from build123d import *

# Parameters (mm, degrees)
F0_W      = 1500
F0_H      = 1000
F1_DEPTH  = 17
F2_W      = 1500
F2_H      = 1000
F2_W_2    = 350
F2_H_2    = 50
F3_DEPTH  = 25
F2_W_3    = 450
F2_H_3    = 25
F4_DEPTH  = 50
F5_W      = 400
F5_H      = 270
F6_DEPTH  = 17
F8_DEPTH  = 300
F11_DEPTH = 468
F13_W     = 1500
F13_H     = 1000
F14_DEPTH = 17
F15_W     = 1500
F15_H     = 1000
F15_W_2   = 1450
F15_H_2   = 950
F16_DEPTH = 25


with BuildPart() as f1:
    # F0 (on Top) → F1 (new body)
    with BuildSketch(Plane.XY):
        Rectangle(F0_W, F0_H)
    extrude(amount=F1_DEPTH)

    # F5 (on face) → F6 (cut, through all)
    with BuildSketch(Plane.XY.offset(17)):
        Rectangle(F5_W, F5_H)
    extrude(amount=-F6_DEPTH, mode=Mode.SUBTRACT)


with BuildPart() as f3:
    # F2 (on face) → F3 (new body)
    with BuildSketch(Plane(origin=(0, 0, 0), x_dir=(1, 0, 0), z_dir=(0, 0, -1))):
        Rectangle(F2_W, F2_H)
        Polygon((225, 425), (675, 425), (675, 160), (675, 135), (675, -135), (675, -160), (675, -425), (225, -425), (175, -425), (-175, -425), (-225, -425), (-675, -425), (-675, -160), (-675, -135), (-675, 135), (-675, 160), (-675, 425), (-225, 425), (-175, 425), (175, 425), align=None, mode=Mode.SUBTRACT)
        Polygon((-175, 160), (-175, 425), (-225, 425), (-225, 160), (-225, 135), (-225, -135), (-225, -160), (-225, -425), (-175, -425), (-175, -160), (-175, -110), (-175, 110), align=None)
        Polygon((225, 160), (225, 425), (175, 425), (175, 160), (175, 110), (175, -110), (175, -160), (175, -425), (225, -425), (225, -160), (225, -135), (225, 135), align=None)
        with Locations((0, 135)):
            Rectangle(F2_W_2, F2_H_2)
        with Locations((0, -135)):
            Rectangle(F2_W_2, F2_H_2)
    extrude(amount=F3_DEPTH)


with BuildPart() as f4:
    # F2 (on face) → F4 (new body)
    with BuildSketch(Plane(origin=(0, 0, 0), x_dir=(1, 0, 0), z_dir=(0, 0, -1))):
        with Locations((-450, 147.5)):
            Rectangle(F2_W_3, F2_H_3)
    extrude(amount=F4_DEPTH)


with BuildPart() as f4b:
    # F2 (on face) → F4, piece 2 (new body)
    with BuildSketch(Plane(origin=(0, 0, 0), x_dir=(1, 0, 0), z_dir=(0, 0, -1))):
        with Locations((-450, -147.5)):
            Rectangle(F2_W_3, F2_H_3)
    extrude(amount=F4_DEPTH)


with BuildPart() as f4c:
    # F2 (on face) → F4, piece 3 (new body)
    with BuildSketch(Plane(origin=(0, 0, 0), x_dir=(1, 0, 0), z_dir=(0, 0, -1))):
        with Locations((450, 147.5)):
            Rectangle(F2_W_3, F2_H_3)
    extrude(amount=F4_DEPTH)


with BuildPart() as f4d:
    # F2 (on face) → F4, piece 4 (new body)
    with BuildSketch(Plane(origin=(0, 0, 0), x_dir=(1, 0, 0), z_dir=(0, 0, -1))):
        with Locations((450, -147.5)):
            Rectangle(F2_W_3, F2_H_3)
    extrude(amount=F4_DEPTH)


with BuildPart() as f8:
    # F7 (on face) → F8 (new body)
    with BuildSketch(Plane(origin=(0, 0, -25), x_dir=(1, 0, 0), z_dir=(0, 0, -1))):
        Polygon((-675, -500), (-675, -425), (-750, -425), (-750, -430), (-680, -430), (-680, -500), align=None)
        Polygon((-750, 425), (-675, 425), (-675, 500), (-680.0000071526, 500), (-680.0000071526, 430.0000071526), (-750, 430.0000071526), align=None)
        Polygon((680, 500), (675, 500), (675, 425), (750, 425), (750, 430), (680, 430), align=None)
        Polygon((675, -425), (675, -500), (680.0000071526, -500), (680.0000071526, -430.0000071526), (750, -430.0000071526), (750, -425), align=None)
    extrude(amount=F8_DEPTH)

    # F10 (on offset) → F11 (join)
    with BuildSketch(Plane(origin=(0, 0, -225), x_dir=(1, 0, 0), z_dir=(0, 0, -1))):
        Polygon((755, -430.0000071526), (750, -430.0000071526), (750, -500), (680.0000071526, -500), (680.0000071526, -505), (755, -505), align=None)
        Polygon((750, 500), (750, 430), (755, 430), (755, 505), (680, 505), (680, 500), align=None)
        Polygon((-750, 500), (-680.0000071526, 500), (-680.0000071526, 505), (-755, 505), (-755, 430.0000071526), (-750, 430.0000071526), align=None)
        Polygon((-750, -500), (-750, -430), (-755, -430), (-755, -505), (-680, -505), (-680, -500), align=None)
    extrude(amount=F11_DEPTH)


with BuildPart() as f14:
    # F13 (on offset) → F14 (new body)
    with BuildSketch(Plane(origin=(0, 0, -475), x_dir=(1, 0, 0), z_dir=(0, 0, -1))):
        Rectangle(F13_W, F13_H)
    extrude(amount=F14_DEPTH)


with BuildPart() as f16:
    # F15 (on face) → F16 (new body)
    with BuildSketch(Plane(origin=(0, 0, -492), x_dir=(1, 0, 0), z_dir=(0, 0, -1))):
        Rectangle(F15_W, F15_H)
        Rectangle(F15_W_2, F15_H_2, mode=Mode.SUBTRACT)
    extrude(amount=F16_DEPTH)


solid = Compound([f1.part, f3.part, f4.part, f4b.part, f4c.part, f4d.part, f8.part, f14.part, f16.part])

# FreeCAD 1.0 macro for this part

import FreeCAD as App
import Part
import Sketcher
from FreeCAD import Vector
Q = App.Units.Quantity


def add_polygon(sketch, points):
    """Adds a closed chain of lines whose ends are joined by coincident constraints."""
    first, n = sketch.GeometryCount, len(points)
    for a, b in zip(points, points[1:] + points[:1]):
        sketch.addGeometry(Part.LineSegment(App.Vector(*a, 0), App.Vector(*b, 0)), False)
    for i in range(n):
        sketch.addConstraint(Sketcher.Constraint("Coincident", first + i, 2, first + (i + 1) % n, 1))

doc = App.newDocument("Part")
body = doc.addObject("PartDesign::Body", "Body")

sketch1 = doc.addObject("Sketcher::SketchObject", "Sketch")
body.addObject(sketch1)
sketch1.AttachmentSupport = (doc.XY_Plane, [""])
sketch1.MapMode = "FlatFace"
add_polygon(sketch1, [(-750, 500), (-750, -500), (750, -500), (750, 500)])
sketch1.addConstraint([
    Sketcher.Constraint("Vertical", 0),
    Sketcher.Constraint("Horizontal", 1),
    Sketcher.Constraint("Vertical", 2),
    Sketcher.Constraint("Horizontal", 3),
    Sketcher.Constraint("Symmetric", 0, 2, 2, 2, -1, 1),
    Sketcher.Constraint("DistanceX", 1, 1, 1, 2, Q("1500 mm")),
    Sketcher.Constraint("DistanceY", 0, 2, 0, 1, Q("1000 mm")),
])
pad1 = doc.addObject("PartDesign::Pad", "Pad")
body.addObject(pad1)
pad1.Profile = sketch1
pad1.Length = 17

sketch2 = doc.addObject("Sketcher::SketchObject", "Sketch001")
body.addObject(sketch2)
sketch2.AttachmentSupport = (doc.XY_Plane, [""])
sketch2.MapMode = "FlatFace"
sketch2.AttachmentOffset = App.Placement(Vector(0, 0, 17), App.Rotation())
add_polygon(sketch2, [(-200, 135), (-200, -135), (200, -135), (200, 135)])
sketch2.addConstraint([
    Sketcher.Constraint("Vertical", 0),
    Sketcher.Constraint("Horizontal", 1),
    Sketcher.Constraint("Vertical", 2),
    Sketcher.Constraint("Horizontal", 3),
    Sketcher.Constraint("Symmetric", 0, 2, 2, 2, -1, 1),
    Sketcher.Constraint("DistanceX", 1, 1, 1, 2, Q("400 mm")),
    Sketcher.Constraint("DistanceY", 0, 2, 0, 1, Q("270 mm")),
])
pocket1 = doc.addObject("PartDesign::Pocket", "Pocket")
body.addObject(pocket1)
pocket1.Profile = sketch2
pocket1.Type = "ThroughAll"
body2 = doc.addObject("PartDesign::Body", "Body001")

sketch3 = doc.addObject("Sketcher::SketchObject", "Sketch002")
body2.addObject(sketch3)
sketch3.AttachmentSupport = (doc.getObject("XY_Plane001"), [""])
sketch3.MapMode = "FlatFace"
add_polygon(sketch3, [(-750, -500), (-750, 500), (750, 500), (750, -500)])
add_polygon(sketch3, [(-675, -425), (-225, -425), (-225, 425), (-675, 425)])
add_polygon(sketch3, [(-175, -425), (175, -425), (175, -160), (-175, -160)])
add_polygon(sketch3, [(175, -110), (175, 110), (-175, 110), (-175, -110)])
add_polygon(sketch3, [(175, 160), (175, 425), (-175, 425), (-175, 160)])
add_polygon(sketch3, [(225, -425), (675, -425), (675, 425), (225, 425)])
sketch3.addConstraint([
    Sketcher.Constraint("Vertical", 0),
    Sketcher.Constraint("Horizontal", 1),
    Sketcher.Constraint("Vertical", 2),
    Sketcher.Constraint("Horizontal", 3),
    Sketcher.Constraint("Horizontal", 4),
    Sketcher.Constraint("Vertical", 5),
    Sketcher.Constraint("Horizontal", 6),
    Sketcher.Constraint("Vertical", 7),
    Sketcher.Constraint("Horizontal", 8),
    Sketcher.Constraint("Vertical", 9),
    Sketcher.Constraint("Horizontal", 10),
    Sketcher.Constraint("Vertical", 11),
    Sketcher.Constraint("Vertical", 12),
    Sketcher.Constraint("Horizontal", 13),
    Sketcher.Constraint("Vertical", 14),
    Sketcher.Constraint("Horizontal", 15),
    Sketcher.Constraint("Vertical", 16),
    Sketcher.Constraint("Horizontal", 17),
    Sketcher.Constraint("Vertical", 18),
    Sketcher.Constraint("Horizontal", 19),
    Sketcher.Constraint("Horizontal", 20),
    Sketcher.Constraint("Vertical", 21),
    Sketcher.Constraint("Horizontal", 22),
    Sketcher.Constraint("Vertical", 23),
    Sketcher.Constraint("Symmetric", 0, 2, 2, 2, -1, 1),
    Sketcher.Constraint("Symmetric", 12, 2, 14, 2, -1, 1),
    Sketcher.Constraint("Symmetric", 11, 2, 16, 2, -1, 1),
    Sketcher.Constraint("Symmetric", 9, 2, 18, 2, -1, 1),
    Sketcher.Constraint("Symmetric", 6, 2, 20, 2, -1, 1),
    Sketcher.Constraint("Symmetric", 4, 2, 22, 2, -1, 1),
    Sketcher.Constraint("Horizontal", 7, 2, 8, 2),
    Sketcher.Constraint("Horizontal", 6, 2, 16, 2),
    Sketcher.Constraint("Vertical", 9, 2, 12, 2),
    Sketcher.Constraint("Vertical", 11, 2, 13, 2),
    Sketcher.Constraint("DistanceX", 1, 1, 1, 2, Q("1500 mm")),
    Sketcher.Constraint("DistanceX", 4, 1, 4, 2, Q("450 mm")),
    Sketcher.Constraint("DistanceX", 8, 1, 8, 2, Q("350 mm")),
    Sketcher.Constraint("DistanceY", 0, 1, 0, 2, Q("1000 mm")),
    Sketcher.Constraint("DistanceY", 5, 1, 5, 2, Q("850 mm")),
    Sketcher.Constraint("DistanceY", 9, 1, 9, 2, Q("265 mm")),
    Sketcher.Constraint("DistanceY", 12, 1, 12, 2, Q("220 mm")),
    Sketcher.Constraint("DistanceX", 4, 2, -1, 1, Q("225 mm")),
])
pad2 = doc.addObject("PartDesign::Pad", "Pad001")
body2.addObject(pad2)
pad2.Profile = sketch3
pad2.Length = 25
pad2.Reversed = True
body3 = doc.addObject("PartDesign::Body", "Body002")

sketch4 = doc.addObject("Sketcher::SketchObject", "Sketch003")
body3.addObject(sketch4)
sketch4.AttachmentSupport = (doc.getObject("XY_Plane002"), [""])
sketch4.MapMode = "FlatFace"
add_polygon(sketch4, [(-675, -160), (-675, -135), (-225, -135), (-225, -160)])
sketch4.addConstraint([
    Sketcher.Constraint("Vertical", 0),
    Sketcher.Constraint("Horizontal", 1),
    Sketcher.Constraint("Vertical", 2),
    Sketcher.Constraint("Horizontal", 3),
    Sketcher.Constraint("DistanceX", 1, 1, 1, 2, Q("450 mm")),
    Sketcher.Constraint("DistanceY", 0, 1, 0, 2, Q("25 mm")),
    Sketcher.Constraint("DistanceX", 0, 2, -1, 1, Q("675 mm")),
    Sketcher.Constraint("DistanceY", 0, 2, -1, 1, Q("135 mm")),
])
pad3 = doc.addObject("PartDesign::Pad", "Pad002")
body3.addObject(pad3)
pad3.Profile = sketch4
pad3.Length = 50
pad3.Reversed = True
body4 = doc.addObject("PartDesign::Body", "Body003")

sketch5 = doc.addObject("Sketcher::SketchObject", "Sketch004")
body4.addObject(sketch5)
sketch5.AttachmentSupport = (doc.getObject("XY_Plane003"), [""])
sketch5.MapMode = "FlatFace"
add_polygon(sketch5, [(-675, 135), (-675, 160), (-225, 160), (-225, 135)])
sketch5.addConstraint([
    Sketcher.Constraint("Vertical", 0),
    Sketcher.Constraint("Horizontal", 1),
    Sketcher.Constraint("Vertical", 2),
    Sketcher.Constraint("Horizontal", 3),
    Sketcher.Constraint("DistanceX", 1, 1, 1, 2, Q("450 mm")),
    Sketcher.Constraint("DistanceY", 0, 1, 0, 2, Q("25 mm")),
    Sketcher.Constraint("DistanceX", 0, 2, -1, 1, Q("675 mm")),
    Sketcher.Constraint("DistanceY", -1, 1, 0, 2, Q("160 mm")),
])
pad4 = doc.addObject("PartDesign::Pad", "Pad003")
body4.addObject(pad4)
pad4.Profile = sketch5
pad4.Length = 50
pad4.Reversed = True
body5 = doc.addObject("PartDesign::Body", "Body004")

sketch6 = doc.addObject("Sketcher::SketchObject", "Sketch005")
body5.addObject(sketch6)
sketch6.AttachmentSupport = (doc.getObject("XY_Plane004"), [""])
sketch6.MapMode = "FlatFace"
add_polygon(sketch6, [(225, -160), (225, -135), (675, -135), (675, -160)])
sketch6.addConstraint([
    Sketcher.Constraint("Vertical", 0),
    Sketcher.Constraint("Horizontal", 1),
    Sketcher.Constraint("Vertical", 2),
    Sketcher.Constraint("Horizontal", 3),
    Sketcher.Constraint("DistanceX", 1, 1, 1, 2, Q("450 mm")),
    Sketcher.Constraint("DistanceY", 0, 1, 0, 2, Q("25 mm")),
    Sketcher.Constraint("DistanceX", -1, 1, 0, 2, Q("225 mm")),
    Sketcher.Constraint("DistanceY", 0, 2, -1, 1, Q("135 mm")),
])
pad5 = doc.addObject("PartDesign::Pad", "Pad004")
body5.addObject(pad5)
pad5.Profile = sketch6
pad5.Length = 50
pad5.Reversed = True
body6 = doc.addObject("PartDesign::Body", "Body005")

sketch7 = doc.addObject("Sketcher::SketchObject", "Sketch006")
body6.addObject(sketch7)
sketch7.AttachmentSupport = (doc.getObject("XY_Plane005"), [""])
sketch7.MapMode = "FlatFace"
add_polygon(sketch7, [(225, 135), (225, 160), (675, 160), (675, 135)])
sketch7.addConstraint([
    Sketcher.Constraint("Vertical", 0),
    Sketcher.Constraint("Horizontal", 1),
    Sketcher.Constraint("Vertical", 2),
    Sketcher.Constraint("Horizontal", 3),
    Sketcher.Constraint("DistanceX", 1, 1, 1, 2, Q("450 mm")),
    Sketcher.Constraint("DistanceY", 0, 1, 0, 2, Q("25 mm")),
    Sketcher.Constraint("DistanceX", -1, 1, 0, 2, Q("225 mm")),
    Sketcher.Constraint("DistanceY", -1, 1, 0, 2, Q("160 mm")),
])
pad6 = doc.addObject("PartDesign::Pad", "Pad005")
body6.addObject(pad6)
pad6.Profile = sketch7
pad6.Length = 50
pad6.Reversed = True
body7 = doc.addObject("PartDesign::Body", "Body006")
body7.AllowCompound = True

sketch8 = doc.addObject("Sketcher::SketchObject", "Sketch007")
body7.addObject(sketch8)
sketch8.AttachmentSupport = (doc.getObject("XY_Plane006"), [""])
sketch8.MapMode = "FlatFace"
sketch8.AttachmentOffset = App.Placement(Vector(0, 0, -25), App.Rotation())
add_polygon(sketch8, [(-675, 500), (-675, 425), (-750, 425), (-750, 430), (-680, 430), (-680, 500)])
add_polygon(sketch8, [(-750, -425), (-675, -425), (-675, -500), (-680.000007, -500), (-680.000007, -430.000007), (-750, -430.000007)])
add_polygon(sketch8, [(680, -500), (675, -500), (675, -425), (750, -425), (750, -430), (680, -430)])
add_polygon(sketch8, [(675, 425), (675, 500), (680.000007, 500), (680.000007, 430.000007), (750, 430.000007), (750, 425)])
sketch8.addConstraint([
    Sketcher.Constraint("Vertical", 0),
    Sketcher.Constraint("Horizontal", 1),
    Sketcher.Constraint("Vertical", 2),
    Sketcher.Constraint("Horizontal", 3),
    Sketcher.Constraint("Vertical", 4),
    Sketcher.Constraint("Horizontal", 5),
    Sketcher.Constraint("Horizontal", 6),
    Sketcher.Constraint("Vertical", 7),
    Sketcher.Constraint("Horizontal", 8),
    Sketcher.Constraint("Vertical", 9),
    Sketcher.Constraint("Horizontal", 10),
    Sketcher.Constraint("Vertical", 11),
    Sketcher.Constraint("Horizontal", 12),
    Sketcher.Constraint("Vertical", 13),
    Sketcher.Constraint("Horizontal", 14),
    Sketcher.Constraint("Vertical", 15),
    Sketcher.Constraint("Horizontal", 16),
    Sketcher.Constraint("Vertical", 17),
    Sketcher.Constraint("Vertical", 18),
    Sketcher.Constraint("Horizontal", 19),
    Sketcher.Constraint("Vertical", 20),
    Sketcher.Constraint("Horizontal", 21),
    Sketcher.Constraint("Vertical", 22),
    Sketcher.Constraint("Horizontal", 23),
    Sketcher.Constraint("Symmetric", 5, 2, 12, 2, -1, 1),
    Sketcher.Constraint("Symmetric", 1, 2, 14, 2, -1, 1),
    Sketcher.Constraint("Symmetric", 3, 2, 16, 2, -1, 1),
    Sketcher.Constraint("Symmetric", 7, 2, 18, 2, -1, 1),
    Sketcher.Constraint("Symmetric", 9, 2, 20, 2, -1, 1),
    Sketcher.Constraint("Symmetric", 11, 2, 22, 2, -1, 1),
    Sketcher.Constraint("Symmetric", 7, 2, 12, 2, -2),
    Sketcher.Constraint("Symmetric", 11, 2, 14, 2, -2),
    Sketcher.Constraint("Equal", 23, 0),
    Sketcher.Constraint("Equal", 12, 2),
    Sketcher.Constraint("Equal", 21, 9),
    Sketcher.Constraint("DistanceX", 1, 2, 1, 1, Q("75 mm")),
    Sketcher.Constraint("DistanceX", 3, 1, 3, 2, Q("70 mm")),
    Sketcher.Constraint("DistanceX", 0, 2, -1, 1, Q("675 mm")),
    Sketcher.Constraint("DistanceY", -1, 1, 0, 2, Q("425 mm")),
    Sketcher.Constraint("DistanceX", 8, 2, 8, 1, Q("5.000007 mm")),
])
pad7 = doc.addObject("PartDesign::Pad", "Pad006")
body7.addObject(pad7)
pad7.Profile = sketch8
pad7.Length = 300
pad7.Reversed = True

sketch9 = doc.addObject("Sketcher::SketchObject", "Sketch008")
body7.addObject(sketch9)
sketch9.AttachmentSupport = (doc.getObject("XY_Plane006"), [""])
sketch9.MapMode = "FlatFace"
sketch9.AttachmentOffset = App.Placement(Vector(0, 0, -225), App.Rotation())
add_polygon(sketch9, [(755, 430.000007), (750, 430.000007), (750, 500), (680.000007, 500), (680.000007, 505), (755, 505)])
add_polygon(sketch9, [(750, -500), (750, -430), (755, -430), (755, -505), (680, -505), (680, -500)])
add_polygon(sketch9, [(-750, -500), (-680.000007, -500), (-680.000007, -505), (-755, -505), (-755, -430.000007), (-750, -430.000007)])
add_polygon(sketch9, [(-750, 500), (-750, 430), (-755, 430), (-755, 505), (-680, 505), (-680, 500)])
sketch9.addConstraint([
    Sketcher.Constraint("Horizontal", 0),
    Sketcher.Constraint("Vertical", 1),
    Sketcher.Constraint("Horizontal", 2),
    Sketcher.Constraint("Vertical", 3),
    Sketcher.Constraint("Horizontal", 4),
    Sketcher.Constraint("Vertical", 5),
    Sketcher.Constraint("Vertical", 6),
    Sketcher.Constraint("Horizontal", 7),
    Sketcher.Constraint("Vertical", 8),
    Sketcher.Constraint("Horizontal", 9),
    Sketcher.Constraint("Vertical", 10),
    Sketcher.Constraint("Horizontal", 11),
    Sketcher.Constraint("Horizontal", 12),
    Sketcher.Constraint("Vertical", 13),
    Sketcher.Constraint("Horizontal", 14),
    Sketcher.Constraint("Vertical", 15),
    Sketcher.Constraint("Horizontal", 16),
    Sketcher.Constraint("Vertical", 17),
    Sketcher.Constraint("Vertical", 18),
    Sketcher.Constraint("Horizontal", 19),
    Sketcher.Constraint("Vertical", 20),
    Sketcher.Constraint("Horizontal", 21),
    Sketcher.Constraint("Vertical", 22),
    Sketcher.Constraint("Horizontal", 23),
    Sketcher.Constraint("Symmetric", 2, 2, 12, 2, -1, 1),
    Sketcher.Constraint("Symmetric", 4, 2, 14, 2, -1, 1),
    Sketcher.Constraint("Symmetric", 0, 2, 16, 2, -1, 1),
    Sketcher.Constraint("Symmetric", 6, 2, 18, 2, -1, 1),
    Sketcher.Constraint("Symmetric", 8, 2, 20, 2, -1, 1),
    Sketcher.Constraint("Symmetric", 10, 2, 22, 2, -1, 1),
    Sketcher.Constraint("Symmetric", 10, 2, 12, 2, -2),
    Sketcher.Constraint("Symmetric", 8, 2, 14, 2, -2),
    Sketcher.Constraint("Symmetric", 6, 2, 16, 2, -2),
    Sketcher.Constraint("Equal", 12, 1),
    Sketcher.Constraint("Equal", 19, 3),
    Sketcher.Constraint("DistanceX", 0, 2, 0, 1, Q("5 mm")),
    Sketcher.Constraint("DistanceX", 9, 2, 9, 1, Q("75 mm")),
    Sketcher.Constraint("DistanceX", -1, 1, 0, 2, Q("750 mm")),
    Sketcher.Constraint("DistanceY", -1, 1, 1, 2, Q("500 mm")),
])
pad8 = doc.addObject("PartDesign::Pad", "Pad007")
body7.addObject(pad8)
pad8.Profile = sketch9
pad8.Length = 468
pad8.Reversed = True
body8 = doc.addObject("PartDesign::Body", "Body007")

sketch10 = doc.addObject("Sketcher::SketchObject", "Sketch009")
body8.addObject(sketch10)
sketch10.AttachmentSupport = (doc.getObject("XY_Plane007"), [""])
sketch10.MapMode = "FlatFace"
sketch10.AttachmentOffset = App.Placement(Vector(0, 0, -475), App.Rotation())
add_polygon(sketch10, [(-750, -500), (-750, 500), (750, 500), (750, -500)])
sketch10.addConstraint([
    Sketcher.Constraint("Vertical", 0),
    Sketcher.Constraint("Horizontal", 1),
    Sketcher.Constraint("Vertical", 2),
    Sketcher.Constraint("Horizontal", 3),
    Sketcher.Constraint("Symmetric", 0, 2, 2, 2, -1, 1),
    Sketcher.Constraint("DistanceX", 1, 1, 1, 2, Q("1500 mm")),
    Sketcher.Constraint("DistanceY", 0, 1, 0, 2, Q("1000 mm")),
])
pad9 = doc.addObject("PartDesign::Pad", "Pad008")
body8.addObject(pad9)
pad9.Profile = sketch10
pad9.Length = 17
pad9.Reversed = True
body9 = doc.addObject("PartDesign::Body", "Body008")

sketch11 = doc.addObject("Sketcher::SketchObject", "Sketch010")
body9.addObject(sketch11)
sketch11.AttachmentSupport = (doc.getObject("XY_Plane008"), [""])
sketch11.MapMode = "FlatFace"
sketch11.AttachmentOffset = App.Placement(Vector(0, 0, -492), App.Rotation())
add_polygon(sketch11, [(-750, -500), (-750, 500), (750, 500), (750, -500)])
add_polygon(sketch11, [(725, 475), (-725, 475), (-725, -475), (725, -475)])
sketch11.addConstraint([
    Sketcher.Constraint("Vertical", 0),
    Sketcher.Constraint("Horizontal", 1),
    Sketcher.Constraint("Vertical", 2),
    Sketcher.Constraint("Horizontal", 3),
    Sketcher.Constraint("Horizontal", 4),
    Sketcher.Constraint("Vertical", 5),
    Sketcher.Constraint("Horizontal", 6),
    Sketcher.Constraint("Vertical", 7),
    Sketcher.Constraint("Symmetric", 0, 2, 2, 2, -1, 1),
    Sketcher.Constraint("Symmetric", 4, 2, 6, 2, -1, 1),
    Sketcher.Constraint("DistanceX", 1, 1, 1, 2, Q("1500 mm")),
    Sketcher.Constraint("DistanceX", 4, 2, 4, 1, Q("1450 mm")),
    Sketcher.Constraint("DistanceY", 0, 1, 0, 2, Q("1000 mm")),
    Sketcher.Constraint("DistanceY", 5, 2, 5, 1, Q("950 mm")),
])
pad10 = doc.addObject("PartDesign::Pad", "Pad009")
body9.addObject(pad10)
pad10.Profile = sketch11
pad10.Length = 25
pad10.Reversed = True

doc.recompute()
